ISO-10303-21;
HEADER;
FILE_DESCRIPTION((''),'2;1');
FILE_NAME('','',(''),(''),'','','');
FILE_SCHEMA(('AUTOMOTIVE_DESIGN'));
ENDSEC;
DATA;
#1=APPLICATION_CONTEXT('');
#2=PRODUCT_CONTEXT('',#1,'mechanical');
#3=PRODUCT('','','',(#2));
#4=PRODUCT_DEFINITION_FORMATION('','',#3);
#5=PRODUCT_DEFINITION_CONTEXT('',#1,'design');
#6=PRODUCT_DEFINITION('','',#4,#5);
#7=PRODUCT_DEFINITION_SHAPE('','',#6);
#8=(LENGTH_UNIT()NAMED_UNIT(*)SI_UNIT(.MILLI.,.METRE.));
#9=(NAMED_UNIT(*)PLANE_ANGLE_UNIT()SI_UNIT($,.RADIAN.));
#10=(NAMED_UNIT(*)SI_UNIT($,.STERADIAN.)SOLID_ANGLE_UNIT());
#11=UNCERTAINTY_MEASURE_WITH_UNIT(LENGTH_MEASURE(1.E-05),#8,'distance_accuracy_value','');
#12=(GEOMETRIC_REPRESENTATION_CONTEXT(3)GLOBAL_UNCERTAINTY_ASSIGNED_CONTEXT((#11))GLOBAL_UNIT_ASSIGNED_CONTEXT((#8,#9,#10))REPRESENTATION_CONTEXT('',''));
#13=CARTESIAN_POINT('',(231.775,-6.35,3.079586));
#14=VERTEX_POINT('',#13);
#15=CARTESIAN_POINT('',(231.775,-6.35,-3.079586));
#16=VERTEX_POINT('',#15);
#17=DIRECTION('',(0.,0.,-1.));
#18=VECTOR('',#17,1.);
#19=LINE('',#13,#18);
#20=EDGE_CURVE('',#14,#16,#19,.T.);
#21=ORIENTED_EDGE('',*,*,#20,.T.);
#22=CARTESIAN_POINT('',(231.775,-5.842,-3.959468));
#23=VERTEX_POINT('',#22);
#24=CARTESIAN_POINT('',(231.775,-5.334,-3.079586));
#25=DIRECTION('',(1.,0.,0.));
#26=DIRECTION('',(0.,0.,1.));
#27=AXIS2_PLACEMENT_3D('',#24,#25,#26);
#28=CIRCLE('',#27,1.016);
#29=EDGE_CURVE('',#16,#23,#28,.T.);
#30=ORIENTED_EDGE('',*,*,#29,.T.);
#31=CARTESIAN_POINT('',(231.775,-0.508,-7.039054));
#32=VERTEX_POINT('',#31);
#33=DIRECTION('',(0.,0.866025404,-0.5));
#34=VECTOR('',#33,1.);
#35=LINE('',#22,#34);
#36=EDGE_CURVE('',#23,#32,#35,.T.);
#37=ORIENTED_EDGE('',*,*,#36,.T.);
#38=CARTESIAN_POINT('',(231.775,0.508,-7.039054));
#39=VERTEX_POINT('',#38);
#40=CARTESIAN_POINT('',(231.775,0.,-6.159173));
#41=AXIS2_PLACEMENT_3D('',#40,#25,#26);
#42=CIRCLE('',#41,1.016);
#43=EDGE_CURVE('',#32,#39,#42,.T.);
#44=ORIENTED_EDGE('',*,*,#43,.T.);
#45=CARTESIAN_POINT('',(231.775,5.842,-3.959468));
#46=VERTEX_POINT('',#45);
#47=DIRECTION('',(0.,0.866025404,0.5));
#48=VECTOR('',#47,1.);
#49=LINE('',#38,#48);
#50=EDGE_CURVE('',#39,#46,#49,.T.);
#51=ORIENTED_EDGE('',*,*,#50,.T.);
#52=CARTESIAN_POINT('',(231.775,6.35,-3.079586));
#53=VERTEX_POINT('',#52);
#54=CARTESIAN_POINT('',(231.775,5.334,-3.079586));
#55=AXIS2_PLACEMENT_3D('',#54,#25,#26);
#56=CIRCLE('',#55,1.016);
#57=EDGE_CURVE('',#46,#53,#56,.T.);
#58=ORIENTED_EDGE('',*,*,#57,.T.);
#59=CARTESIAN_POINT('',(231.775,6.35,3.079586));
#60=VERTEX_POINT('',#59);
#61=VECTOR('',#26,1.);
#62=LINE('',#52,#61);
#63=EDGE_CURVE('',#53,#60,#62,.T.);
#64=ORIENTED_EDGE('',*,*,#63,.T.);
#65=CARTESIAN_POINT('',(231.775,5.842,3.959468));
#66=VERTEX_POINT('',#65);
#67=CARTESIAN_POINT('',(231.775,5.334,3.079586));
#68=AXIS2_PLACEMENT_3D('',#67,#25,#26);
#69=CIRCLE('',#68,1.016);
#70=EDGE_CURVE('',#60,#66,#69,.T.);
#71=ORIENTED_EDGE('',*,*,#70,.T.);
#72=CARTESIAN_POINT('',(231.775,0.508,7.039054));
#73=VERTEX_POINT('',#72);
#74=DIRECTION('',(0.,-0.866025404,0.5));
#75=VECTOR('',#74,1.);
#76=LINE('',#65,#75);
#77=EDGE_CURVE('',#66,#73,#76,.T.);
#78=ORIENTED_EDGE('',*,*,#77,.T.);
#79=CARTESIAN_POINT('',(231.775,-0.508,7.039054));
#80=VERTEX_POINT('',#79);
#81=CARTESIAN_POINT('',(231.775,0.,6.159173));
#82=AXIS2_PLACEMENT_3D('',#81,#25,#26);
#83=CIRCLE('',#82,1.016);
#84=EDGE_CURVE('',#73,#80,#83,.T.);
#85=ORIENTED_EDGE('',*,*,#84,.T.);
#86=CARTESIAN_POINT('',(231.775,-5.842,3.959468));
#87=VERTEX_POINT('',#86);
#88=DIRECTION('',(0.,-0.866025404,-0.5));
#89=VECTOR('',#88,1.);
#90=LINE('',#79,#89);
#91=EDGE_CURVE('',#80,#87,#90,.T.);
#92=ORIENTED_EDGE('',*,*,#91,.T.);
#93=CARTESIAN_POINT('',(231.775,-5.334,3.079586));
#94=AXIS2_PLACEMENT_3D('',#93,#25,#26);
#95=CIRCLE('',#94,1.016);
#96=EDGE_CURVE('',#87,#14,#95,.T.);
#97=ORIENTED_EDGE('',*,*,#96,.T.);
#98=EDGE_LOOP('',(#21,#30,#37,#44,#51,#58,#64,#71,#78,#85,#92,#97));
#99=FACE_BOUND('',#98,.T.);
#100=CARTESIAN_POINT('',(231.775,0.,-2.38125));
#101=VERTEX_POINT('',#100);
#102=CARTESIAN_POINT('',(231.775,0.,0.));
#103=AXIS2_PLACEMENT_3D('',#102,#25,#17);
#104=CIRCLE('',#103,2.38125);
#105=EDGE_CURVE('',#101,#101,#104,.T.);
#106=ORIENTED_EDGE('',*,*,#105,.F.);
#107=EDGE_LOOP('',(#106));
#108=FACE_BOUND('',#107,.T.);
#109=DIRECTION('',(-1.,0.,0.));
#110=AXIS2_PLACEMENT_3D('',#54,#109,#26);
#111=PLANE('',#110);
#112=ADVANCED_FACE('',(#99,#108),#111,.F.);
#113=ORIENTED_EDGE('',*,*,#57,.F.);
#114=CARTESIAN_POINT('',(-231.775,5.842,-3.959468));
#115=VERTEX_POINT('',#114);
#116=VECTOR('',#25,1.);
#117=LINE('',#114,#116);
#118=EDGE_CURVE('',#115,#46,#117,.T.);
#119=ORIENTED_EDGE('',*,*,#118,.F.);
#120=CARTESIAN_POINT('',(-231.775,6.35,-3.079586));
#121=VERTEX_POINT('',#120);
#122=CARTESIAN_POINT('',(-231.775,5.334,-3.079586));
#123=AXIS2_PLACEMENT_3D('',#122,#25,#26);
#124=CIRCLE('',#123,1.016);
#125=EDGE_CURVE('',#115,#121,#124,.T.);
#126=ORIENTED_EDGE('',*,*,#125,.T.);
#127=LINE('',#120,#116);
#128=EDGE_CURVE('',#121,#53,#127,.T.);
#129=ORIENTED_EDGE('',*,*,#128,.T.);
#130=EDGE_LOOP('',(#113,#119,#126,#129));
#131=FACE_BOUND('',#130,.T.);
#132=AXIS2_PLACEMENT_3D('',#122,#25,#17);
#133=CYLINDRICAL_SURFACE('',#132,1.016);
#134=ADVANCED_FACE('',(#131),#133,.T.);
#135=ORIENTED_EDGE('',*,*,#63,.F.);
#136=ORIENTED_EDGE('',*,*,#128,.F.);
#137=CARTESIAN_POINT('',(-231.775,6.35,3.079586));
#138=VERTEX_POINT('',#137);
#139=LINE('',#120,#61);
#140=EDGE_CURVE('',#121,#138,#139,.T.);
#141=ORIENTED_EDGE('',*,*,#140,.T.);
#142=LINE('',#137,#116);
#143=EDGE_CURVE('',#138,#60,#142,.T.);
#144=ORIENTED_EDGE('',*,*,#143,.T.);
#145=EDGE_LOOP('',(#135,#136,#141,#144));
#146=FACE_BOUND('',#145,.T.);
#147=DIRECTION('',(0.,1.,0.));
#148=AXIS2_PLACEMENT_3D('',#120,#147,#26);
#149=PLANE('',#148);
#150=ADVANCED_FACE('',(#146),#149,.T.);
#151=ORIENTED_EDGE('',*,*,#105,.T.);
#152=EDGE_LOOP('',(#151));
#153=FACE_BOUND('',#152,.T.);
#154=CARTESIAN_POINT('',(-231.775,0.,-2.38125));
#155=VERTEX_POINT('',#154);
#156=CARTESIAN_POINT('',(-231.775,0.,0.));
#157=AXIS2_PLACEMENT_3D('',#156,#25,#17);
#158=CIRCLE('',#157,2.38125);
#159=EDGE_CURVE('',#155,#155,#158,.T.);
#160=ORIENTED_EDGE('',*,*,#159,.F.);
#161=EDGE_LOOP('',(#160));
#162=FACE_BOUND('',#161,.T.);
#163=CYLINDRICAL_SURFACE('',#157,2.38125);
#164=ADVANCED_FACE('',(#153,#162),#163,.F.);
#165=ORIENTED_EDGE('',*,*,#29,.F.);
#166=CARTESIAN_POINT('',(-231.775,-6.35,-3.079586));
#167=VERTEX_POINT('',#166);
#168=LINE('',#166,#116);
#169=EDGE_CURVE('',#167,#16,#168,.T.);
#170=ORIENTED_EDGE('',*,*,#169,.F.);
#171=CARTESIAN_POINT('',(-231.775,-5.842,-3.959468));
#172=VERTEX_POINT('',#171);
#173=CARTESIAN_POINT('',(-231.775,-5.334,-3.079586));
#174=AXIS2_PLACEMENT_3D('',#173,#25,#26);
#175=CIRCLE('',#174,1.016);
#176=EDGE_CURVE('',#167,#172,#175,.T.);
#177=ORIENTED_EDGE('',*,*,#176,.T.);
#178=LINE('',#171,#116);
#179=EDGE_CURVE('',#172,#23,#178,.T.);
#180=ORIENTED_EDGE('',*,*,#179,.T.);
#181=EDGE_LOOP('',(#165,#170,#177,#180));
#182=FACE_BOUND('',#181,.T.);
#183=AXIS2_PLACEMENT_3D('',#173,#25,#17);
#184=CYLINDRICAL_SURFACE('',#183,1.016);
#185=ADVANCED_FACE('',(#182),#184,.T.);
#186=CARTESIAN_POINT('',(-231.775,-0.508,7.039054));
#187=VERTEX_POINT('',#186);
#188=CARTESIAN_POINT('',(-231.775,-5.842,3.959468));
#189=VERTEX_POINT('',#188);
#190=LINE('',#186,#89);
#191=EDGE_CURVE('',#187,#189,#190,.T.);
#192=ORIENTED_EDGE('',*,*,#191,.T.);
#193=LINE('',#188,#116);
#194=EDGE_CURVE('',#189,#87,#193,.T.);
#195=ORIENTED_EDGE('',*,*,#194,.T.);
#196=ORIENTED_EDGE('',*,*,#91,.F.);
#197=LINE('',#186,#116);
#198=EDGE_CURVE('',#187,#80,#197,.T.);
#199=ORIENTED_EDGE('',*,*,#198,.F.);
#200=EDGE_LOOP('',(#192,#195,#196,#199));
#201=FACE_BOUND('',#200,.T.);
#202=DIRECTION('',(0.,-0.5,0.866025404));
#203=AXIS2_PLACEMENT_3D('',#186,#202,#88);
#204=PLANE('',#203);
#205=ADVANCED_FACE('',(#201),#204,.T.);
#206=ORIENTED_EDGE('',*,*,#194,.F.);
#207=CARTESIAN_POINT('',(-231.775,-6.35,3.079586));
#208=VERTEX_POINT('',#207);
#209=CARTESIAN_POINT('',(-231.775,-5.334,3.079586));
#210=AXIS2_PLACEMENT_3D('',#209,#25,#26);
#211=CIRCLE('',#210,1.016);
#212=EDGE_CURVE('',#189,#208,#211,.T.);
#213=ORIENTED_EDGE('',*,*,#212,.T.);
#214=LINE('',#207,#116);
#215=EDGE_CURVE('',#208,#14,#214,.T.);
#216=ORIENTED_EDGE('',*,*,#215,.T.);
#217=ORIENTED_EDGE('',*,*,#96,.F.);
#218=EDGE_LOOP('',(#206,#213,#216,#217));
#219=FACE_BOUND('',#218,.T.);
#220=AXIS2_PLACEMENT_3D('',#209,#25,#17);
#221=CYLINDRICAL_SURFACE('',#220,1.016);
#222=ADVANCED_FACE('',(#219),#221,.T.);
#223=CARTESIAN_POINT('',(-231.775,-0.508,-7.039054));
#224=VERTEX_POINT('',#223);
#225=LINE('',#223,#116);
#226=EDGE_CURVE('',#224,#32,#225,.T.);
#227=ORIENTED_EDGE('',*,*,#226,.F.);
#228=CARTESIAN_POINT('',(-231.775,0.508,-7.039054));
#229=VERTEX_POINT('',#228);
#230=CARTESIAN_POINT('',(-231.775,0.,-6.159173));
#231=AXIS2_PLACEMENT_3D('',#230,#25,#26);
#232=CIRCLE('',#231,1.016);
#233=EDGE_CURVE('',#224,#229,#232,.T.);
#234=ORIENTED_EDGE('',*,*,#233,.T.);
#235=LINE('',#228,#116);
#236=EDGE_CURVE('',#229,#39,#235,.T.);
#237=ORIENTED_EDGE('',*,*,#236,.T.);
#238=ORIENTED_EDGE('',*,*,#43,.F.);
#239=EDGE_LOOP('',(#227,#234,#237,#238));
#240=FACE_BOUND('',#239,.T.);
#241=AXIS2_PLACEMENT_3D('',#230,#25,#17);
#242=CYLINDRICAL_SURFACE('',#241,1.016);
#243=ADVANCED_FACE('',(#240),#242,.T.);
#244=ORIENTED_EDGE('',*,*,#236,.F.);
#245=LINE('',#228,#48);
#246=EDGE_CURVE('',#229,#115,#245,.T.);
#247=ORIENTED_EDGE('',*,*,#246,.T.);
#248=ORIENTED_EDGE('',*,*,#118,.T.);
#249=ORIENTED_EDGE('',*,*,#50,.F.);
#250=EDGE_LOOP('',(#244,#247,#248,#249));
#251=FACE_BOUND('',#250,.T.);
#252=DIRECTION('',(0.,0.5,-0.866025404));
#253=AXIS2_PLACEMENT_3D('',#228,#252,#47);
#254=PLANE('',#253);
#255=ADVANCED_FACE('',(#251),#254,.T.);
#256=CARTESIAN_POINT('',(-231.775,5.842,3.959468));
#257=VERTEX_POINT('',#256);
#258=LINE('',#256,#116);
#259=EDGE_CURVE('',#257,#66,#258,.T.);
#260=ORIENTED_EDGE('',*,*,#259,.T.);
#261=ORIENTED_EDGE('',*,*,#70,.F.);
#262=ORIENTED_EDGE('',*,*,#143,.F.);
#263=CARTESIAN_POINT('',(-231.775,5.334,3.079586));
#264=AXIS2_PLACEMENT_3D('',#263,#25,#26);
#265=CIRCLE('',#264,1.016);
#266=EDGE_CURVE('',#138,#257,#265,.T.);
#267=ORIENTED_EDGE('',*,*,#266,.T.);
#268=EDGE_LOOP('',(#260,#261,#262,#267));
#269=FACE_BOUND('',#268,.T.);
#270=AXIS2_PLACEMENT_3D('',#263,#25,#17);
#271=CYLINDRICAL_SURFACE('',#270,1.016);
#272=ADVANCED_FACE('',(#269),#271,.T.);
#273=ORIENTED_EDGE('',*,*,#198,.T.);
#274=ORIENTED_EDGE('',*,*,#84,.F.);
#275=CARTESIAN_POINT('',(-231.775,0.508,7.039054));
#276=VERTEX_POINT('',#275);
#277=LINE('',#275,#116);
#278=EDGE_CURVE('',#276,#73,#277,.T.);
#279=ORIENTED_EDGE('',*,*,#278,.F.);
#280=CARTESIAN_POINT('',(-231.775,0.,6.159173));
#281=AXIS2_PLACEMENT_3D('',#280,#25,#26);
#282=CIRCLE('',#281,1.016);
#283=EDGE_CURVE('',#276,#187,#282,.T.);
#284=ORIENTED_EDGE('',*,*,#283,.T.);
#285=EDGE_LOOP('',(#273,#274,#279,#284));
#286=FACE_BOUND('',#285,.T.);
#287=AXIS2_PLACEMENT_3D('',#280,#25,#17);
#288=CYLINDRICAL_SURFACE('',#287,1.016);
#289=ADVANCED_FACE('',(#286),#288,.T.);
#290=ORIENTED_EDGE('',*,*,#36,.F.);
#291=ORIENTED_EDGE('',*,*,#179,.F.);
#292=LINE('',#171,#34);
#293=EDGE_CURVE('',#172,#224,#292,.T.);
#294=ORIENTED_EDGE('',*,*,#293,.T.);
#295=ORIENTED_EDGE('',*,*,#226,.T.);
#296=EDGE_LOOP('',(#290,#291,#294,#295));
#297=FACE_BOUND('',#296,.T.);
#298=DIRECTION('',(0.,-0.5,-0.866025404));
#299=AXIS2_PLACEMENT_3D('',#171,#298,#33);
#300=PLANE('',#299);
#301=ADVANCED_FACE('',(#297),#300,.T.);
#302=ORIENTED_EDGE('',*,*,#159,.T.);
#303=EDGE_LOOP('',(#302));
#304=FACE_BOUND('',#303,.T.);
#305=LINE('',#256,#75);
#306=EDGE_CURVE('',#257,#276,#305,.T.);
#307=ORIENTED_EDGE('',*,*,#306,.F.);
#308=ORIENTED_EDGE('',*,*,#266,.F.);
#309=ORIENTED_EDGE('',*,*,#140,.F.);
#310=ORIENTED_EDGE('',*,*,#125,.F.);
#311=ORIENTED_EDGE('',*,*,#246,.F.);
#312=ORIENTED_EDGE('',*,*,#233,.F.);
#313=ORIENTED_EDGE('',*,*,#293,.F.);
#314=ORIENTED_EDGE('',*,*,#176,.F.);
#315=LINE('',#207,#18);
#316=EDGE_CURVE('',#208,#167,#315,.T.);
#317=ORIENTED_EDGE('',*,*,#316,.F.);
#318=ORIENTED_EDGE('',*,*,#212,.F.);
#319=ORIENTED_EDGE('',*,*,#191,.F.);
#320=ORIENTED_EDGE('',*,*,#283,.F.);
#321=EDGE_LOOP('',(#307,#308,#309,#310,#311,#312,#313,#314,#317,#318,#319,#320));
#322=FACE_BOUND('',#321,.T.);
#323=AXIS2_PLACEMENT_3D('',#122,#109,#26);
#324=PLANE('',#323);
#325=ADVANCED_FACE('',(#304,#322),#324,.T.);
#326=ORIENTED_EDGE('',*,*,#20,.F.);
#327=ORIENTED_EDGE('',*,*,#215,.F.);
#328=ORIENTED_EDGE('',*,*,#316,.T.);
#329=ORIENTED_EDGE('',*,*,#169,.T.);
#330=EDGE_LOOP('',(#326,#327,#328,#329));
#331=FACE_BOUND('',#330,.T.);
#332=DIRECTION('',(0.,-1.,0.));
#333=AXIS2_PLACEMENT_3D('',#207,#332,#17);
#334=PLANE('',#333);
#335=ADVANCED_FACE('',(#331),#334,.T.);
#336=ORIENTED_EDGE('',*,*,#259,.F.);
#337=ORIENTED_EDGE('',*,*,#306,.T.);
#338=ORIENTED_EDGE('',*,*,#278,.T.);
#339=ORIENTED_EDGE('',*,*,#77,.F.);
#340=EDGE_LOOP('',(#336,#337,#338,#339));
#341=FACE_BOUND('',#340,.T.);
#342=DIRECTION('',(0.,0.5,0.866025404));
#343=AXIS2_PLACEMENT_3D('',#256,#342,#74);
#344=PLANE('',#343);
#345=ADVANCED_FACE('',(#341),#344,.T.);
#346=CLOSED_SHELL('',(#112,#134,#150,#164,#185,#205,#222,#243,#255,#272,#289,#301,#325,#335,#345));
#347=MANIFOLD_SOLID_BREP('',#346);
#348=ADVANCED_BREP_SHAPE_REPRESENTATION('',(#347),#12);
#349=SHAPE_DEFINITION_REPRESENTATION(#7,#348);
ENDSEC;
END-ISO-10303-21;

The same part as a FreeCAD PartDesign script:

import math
import FreeCAD as App
import Part
import Sketcher
Q = App.Units.Quantity

doc = App.newDocument("Part")
body = doc.addObject("PartDesign::Body", "Body")

# Sketch on YZ plane
sketch1 = body.newObject("Sketcher::SketchObject", "Sketch")
sketch1.AttachmentSupport = (doc.getObject("YZ_Plane"), [""])
sketch1.MapMode = "FlatFace"
sketch1.addGeometry(Part.LineSegment(App.Vector(0.508, -7.039054, 0), App.Vector(5.842, -3.959468, 0)), False)
sketch1.addGeometry(Part.ArcOfCircle(Part.Circle(App.Vector(5.334, -3.079586, 0), App.Vector(0, 0, 1), 1.016), math.radians(-60), math.radians(0)), False)
sketch1.addGeometry(Part.LineSegment(App.Vector(6.35, -3.079586, 0), App.Vector(6.35, 3.079586, 0)), False)
sketch1.addGeometry(Part.ArcOfCircle(Part.Circle(App.Vector(5.334, 3.079586, 0), App.Vector(0, 0, 1), 1.016), math.radians(0), math.radians(60)), False)
sketch1.addGeometry(Part.LineSegment(App.Vector(5.842, 3.959468, 0), App.Vector(0.508, 7.039054, 0)), False)
sketch1.addGeometry(Part.ArcOfCircle(Part.Circle(App.Vector(0, 6.159173, 0), App.Vector(0, 0, 1), 1.016), math.radians(60), math.radians(120)), False)
sketch1.addGeometry(Part.LineSegment(App.Vector(-0.508, 7.039054, 0), App.Vector(-5.842, 3.959468, 0)), False)
sketch1.addGeometry(Part.ArcOfCircle(Part.Circle(App.Vector(-5.334, 3.079586, 0), App.Vector(0, 0, 1), 1.016), math.radians(120), math.radians(180)), False)
sketch1.addGeometry(Part.LineSegment(App.Vector(-6.35, 3.079586, 0), App.Vector(-6.35, -3.079586, 0)), False)
sketch1.addGeometry(Part.ArcOfCircle(Part.Circle(App.Vector(-5.334, -3.079586, 0), App.Vector(0, 0, 1), 1.016), math.radians(-180), math.radians(-120)), False)
sketch1.addGeometry(Part.LineSegment(App.Vector(-5.842, -3.959468, 0), App.Vector(-0.508, -7.039054, 0)), False)
sketch1.addGeometry(Part.ArcOfCircle(Part.Circle(App.Vector(0, -6.159173, 0), App.Vector(0, 0, 1), 1.016), math.radians(-120), math.radians(-60)), False)
sketch1.addGeometry(Part.Circle(App.Vector(0, 0, 0), App.Vector(0, 0, 1), 2.38125), False)
sketch1.addConstraint(Sketcher.Constraint("Tangent", 0, 2, 1, 1))
sketch1.addConstraint(Sketcher.Constraint("Tangent", 1, 2, 2, 1))
sketch1.addConstraint(Sketcher.Constraint("Tangent", 2, 2, 3, 1))
sketch1.addConstraint(Sketcher.Constraint("Tangent", 3, 2, 4, 1))
sketch1.addConstraint(Sketcher.Constraint("Tangent", 4, 2, 5, 1))
sketch1.addConstraint(Sketcher.Constraint("Tangent", 5, 2, 6, 1))
sketch1.addConstraint(Sketcher.Constraint("Tangent", 6, 2, 7, 1))
sketch1.addConstraint(Sketcher.Constraint("Tangent", 7, 2, 8, 1))
sketch1.addConstraint(Sketcher.Constraint("Tangent", 8, 2, 9, 1))
sketch1.addConstraint(Sketcher.Constraint("Tangent", 9, 2, 10, 1))
sketch1.addConstraint(Sketcher.Constraint("Tangent", 10, 2, 11, 1))
sketch1.addConstraint(Sketcher.Constraint("Tangent", 11, 2, 0, 1))
sketch1.addConstraint(Sketcher.Constraint("Vertical", 2))
sketch1.addConstraint(Sketcher.Constraint("Vertical", 8))
sketch1.addConstraint(Sketcher.Constraint("Coincident", 12, 3, -1, 1))
sketch1.addConstraint(Sketcher.Constraint("Equal", 1, 3))
sketch1.addConstraint(Sketcher.Constraint("Equal", 3, 5))
sketch1.addConstraint(Sketcher.Constraint("Equal", 5, 7))
sketch1.addConstraint(Sketcher.Constraint("Equal", 7, 9))
sketch1.addConstraint(Sketcher.Constraint("Equal", 9, 11))
sketch1.addConstraint(Sketcher.Constraint("Symmetric", 1, 3, 7, 3, -1, 1))
sketch1.addConstraint(Sketcher.Constraint("Symmetric", 5, 3, 11, 3, -1, 1))
sketch1.addConstraint(Sketcher.Constraint("Symmetric", 4, 2, 5, 2, -2))
sketch1.addConstraint(Sketcher.Constraint("Parallel", 4, 10))
sketch1.addConstraint(Sketcher.Constraint("Radius", 1, Q("0.04 in")))
sketch1.addConstraint(Sketcher.Constraint("Diameter", 12, Q("0.1875 in")))
sketch1.addConstraint(Sketcher.Constraint("Angle", 0, Q("30 deg")))
sketch1.addConstraint(Sketcher.Constraint("DistanceX", -1, 1, 1, 3, Q("0.21 in")))
sketch1.addConstraint(Sketcher.Constraint("DistanceY", 2, 1, 2, 2, 6.159173))
pad1 = body.newObject("PartDesign::Pad", "Pad")
pad1.Profile = sketch1
pad1.Type = "TwoLengths"
pad1.Length = Q("9.125 in")
pad1.Length2 = Q("9.125 in")

doc.recompute()
